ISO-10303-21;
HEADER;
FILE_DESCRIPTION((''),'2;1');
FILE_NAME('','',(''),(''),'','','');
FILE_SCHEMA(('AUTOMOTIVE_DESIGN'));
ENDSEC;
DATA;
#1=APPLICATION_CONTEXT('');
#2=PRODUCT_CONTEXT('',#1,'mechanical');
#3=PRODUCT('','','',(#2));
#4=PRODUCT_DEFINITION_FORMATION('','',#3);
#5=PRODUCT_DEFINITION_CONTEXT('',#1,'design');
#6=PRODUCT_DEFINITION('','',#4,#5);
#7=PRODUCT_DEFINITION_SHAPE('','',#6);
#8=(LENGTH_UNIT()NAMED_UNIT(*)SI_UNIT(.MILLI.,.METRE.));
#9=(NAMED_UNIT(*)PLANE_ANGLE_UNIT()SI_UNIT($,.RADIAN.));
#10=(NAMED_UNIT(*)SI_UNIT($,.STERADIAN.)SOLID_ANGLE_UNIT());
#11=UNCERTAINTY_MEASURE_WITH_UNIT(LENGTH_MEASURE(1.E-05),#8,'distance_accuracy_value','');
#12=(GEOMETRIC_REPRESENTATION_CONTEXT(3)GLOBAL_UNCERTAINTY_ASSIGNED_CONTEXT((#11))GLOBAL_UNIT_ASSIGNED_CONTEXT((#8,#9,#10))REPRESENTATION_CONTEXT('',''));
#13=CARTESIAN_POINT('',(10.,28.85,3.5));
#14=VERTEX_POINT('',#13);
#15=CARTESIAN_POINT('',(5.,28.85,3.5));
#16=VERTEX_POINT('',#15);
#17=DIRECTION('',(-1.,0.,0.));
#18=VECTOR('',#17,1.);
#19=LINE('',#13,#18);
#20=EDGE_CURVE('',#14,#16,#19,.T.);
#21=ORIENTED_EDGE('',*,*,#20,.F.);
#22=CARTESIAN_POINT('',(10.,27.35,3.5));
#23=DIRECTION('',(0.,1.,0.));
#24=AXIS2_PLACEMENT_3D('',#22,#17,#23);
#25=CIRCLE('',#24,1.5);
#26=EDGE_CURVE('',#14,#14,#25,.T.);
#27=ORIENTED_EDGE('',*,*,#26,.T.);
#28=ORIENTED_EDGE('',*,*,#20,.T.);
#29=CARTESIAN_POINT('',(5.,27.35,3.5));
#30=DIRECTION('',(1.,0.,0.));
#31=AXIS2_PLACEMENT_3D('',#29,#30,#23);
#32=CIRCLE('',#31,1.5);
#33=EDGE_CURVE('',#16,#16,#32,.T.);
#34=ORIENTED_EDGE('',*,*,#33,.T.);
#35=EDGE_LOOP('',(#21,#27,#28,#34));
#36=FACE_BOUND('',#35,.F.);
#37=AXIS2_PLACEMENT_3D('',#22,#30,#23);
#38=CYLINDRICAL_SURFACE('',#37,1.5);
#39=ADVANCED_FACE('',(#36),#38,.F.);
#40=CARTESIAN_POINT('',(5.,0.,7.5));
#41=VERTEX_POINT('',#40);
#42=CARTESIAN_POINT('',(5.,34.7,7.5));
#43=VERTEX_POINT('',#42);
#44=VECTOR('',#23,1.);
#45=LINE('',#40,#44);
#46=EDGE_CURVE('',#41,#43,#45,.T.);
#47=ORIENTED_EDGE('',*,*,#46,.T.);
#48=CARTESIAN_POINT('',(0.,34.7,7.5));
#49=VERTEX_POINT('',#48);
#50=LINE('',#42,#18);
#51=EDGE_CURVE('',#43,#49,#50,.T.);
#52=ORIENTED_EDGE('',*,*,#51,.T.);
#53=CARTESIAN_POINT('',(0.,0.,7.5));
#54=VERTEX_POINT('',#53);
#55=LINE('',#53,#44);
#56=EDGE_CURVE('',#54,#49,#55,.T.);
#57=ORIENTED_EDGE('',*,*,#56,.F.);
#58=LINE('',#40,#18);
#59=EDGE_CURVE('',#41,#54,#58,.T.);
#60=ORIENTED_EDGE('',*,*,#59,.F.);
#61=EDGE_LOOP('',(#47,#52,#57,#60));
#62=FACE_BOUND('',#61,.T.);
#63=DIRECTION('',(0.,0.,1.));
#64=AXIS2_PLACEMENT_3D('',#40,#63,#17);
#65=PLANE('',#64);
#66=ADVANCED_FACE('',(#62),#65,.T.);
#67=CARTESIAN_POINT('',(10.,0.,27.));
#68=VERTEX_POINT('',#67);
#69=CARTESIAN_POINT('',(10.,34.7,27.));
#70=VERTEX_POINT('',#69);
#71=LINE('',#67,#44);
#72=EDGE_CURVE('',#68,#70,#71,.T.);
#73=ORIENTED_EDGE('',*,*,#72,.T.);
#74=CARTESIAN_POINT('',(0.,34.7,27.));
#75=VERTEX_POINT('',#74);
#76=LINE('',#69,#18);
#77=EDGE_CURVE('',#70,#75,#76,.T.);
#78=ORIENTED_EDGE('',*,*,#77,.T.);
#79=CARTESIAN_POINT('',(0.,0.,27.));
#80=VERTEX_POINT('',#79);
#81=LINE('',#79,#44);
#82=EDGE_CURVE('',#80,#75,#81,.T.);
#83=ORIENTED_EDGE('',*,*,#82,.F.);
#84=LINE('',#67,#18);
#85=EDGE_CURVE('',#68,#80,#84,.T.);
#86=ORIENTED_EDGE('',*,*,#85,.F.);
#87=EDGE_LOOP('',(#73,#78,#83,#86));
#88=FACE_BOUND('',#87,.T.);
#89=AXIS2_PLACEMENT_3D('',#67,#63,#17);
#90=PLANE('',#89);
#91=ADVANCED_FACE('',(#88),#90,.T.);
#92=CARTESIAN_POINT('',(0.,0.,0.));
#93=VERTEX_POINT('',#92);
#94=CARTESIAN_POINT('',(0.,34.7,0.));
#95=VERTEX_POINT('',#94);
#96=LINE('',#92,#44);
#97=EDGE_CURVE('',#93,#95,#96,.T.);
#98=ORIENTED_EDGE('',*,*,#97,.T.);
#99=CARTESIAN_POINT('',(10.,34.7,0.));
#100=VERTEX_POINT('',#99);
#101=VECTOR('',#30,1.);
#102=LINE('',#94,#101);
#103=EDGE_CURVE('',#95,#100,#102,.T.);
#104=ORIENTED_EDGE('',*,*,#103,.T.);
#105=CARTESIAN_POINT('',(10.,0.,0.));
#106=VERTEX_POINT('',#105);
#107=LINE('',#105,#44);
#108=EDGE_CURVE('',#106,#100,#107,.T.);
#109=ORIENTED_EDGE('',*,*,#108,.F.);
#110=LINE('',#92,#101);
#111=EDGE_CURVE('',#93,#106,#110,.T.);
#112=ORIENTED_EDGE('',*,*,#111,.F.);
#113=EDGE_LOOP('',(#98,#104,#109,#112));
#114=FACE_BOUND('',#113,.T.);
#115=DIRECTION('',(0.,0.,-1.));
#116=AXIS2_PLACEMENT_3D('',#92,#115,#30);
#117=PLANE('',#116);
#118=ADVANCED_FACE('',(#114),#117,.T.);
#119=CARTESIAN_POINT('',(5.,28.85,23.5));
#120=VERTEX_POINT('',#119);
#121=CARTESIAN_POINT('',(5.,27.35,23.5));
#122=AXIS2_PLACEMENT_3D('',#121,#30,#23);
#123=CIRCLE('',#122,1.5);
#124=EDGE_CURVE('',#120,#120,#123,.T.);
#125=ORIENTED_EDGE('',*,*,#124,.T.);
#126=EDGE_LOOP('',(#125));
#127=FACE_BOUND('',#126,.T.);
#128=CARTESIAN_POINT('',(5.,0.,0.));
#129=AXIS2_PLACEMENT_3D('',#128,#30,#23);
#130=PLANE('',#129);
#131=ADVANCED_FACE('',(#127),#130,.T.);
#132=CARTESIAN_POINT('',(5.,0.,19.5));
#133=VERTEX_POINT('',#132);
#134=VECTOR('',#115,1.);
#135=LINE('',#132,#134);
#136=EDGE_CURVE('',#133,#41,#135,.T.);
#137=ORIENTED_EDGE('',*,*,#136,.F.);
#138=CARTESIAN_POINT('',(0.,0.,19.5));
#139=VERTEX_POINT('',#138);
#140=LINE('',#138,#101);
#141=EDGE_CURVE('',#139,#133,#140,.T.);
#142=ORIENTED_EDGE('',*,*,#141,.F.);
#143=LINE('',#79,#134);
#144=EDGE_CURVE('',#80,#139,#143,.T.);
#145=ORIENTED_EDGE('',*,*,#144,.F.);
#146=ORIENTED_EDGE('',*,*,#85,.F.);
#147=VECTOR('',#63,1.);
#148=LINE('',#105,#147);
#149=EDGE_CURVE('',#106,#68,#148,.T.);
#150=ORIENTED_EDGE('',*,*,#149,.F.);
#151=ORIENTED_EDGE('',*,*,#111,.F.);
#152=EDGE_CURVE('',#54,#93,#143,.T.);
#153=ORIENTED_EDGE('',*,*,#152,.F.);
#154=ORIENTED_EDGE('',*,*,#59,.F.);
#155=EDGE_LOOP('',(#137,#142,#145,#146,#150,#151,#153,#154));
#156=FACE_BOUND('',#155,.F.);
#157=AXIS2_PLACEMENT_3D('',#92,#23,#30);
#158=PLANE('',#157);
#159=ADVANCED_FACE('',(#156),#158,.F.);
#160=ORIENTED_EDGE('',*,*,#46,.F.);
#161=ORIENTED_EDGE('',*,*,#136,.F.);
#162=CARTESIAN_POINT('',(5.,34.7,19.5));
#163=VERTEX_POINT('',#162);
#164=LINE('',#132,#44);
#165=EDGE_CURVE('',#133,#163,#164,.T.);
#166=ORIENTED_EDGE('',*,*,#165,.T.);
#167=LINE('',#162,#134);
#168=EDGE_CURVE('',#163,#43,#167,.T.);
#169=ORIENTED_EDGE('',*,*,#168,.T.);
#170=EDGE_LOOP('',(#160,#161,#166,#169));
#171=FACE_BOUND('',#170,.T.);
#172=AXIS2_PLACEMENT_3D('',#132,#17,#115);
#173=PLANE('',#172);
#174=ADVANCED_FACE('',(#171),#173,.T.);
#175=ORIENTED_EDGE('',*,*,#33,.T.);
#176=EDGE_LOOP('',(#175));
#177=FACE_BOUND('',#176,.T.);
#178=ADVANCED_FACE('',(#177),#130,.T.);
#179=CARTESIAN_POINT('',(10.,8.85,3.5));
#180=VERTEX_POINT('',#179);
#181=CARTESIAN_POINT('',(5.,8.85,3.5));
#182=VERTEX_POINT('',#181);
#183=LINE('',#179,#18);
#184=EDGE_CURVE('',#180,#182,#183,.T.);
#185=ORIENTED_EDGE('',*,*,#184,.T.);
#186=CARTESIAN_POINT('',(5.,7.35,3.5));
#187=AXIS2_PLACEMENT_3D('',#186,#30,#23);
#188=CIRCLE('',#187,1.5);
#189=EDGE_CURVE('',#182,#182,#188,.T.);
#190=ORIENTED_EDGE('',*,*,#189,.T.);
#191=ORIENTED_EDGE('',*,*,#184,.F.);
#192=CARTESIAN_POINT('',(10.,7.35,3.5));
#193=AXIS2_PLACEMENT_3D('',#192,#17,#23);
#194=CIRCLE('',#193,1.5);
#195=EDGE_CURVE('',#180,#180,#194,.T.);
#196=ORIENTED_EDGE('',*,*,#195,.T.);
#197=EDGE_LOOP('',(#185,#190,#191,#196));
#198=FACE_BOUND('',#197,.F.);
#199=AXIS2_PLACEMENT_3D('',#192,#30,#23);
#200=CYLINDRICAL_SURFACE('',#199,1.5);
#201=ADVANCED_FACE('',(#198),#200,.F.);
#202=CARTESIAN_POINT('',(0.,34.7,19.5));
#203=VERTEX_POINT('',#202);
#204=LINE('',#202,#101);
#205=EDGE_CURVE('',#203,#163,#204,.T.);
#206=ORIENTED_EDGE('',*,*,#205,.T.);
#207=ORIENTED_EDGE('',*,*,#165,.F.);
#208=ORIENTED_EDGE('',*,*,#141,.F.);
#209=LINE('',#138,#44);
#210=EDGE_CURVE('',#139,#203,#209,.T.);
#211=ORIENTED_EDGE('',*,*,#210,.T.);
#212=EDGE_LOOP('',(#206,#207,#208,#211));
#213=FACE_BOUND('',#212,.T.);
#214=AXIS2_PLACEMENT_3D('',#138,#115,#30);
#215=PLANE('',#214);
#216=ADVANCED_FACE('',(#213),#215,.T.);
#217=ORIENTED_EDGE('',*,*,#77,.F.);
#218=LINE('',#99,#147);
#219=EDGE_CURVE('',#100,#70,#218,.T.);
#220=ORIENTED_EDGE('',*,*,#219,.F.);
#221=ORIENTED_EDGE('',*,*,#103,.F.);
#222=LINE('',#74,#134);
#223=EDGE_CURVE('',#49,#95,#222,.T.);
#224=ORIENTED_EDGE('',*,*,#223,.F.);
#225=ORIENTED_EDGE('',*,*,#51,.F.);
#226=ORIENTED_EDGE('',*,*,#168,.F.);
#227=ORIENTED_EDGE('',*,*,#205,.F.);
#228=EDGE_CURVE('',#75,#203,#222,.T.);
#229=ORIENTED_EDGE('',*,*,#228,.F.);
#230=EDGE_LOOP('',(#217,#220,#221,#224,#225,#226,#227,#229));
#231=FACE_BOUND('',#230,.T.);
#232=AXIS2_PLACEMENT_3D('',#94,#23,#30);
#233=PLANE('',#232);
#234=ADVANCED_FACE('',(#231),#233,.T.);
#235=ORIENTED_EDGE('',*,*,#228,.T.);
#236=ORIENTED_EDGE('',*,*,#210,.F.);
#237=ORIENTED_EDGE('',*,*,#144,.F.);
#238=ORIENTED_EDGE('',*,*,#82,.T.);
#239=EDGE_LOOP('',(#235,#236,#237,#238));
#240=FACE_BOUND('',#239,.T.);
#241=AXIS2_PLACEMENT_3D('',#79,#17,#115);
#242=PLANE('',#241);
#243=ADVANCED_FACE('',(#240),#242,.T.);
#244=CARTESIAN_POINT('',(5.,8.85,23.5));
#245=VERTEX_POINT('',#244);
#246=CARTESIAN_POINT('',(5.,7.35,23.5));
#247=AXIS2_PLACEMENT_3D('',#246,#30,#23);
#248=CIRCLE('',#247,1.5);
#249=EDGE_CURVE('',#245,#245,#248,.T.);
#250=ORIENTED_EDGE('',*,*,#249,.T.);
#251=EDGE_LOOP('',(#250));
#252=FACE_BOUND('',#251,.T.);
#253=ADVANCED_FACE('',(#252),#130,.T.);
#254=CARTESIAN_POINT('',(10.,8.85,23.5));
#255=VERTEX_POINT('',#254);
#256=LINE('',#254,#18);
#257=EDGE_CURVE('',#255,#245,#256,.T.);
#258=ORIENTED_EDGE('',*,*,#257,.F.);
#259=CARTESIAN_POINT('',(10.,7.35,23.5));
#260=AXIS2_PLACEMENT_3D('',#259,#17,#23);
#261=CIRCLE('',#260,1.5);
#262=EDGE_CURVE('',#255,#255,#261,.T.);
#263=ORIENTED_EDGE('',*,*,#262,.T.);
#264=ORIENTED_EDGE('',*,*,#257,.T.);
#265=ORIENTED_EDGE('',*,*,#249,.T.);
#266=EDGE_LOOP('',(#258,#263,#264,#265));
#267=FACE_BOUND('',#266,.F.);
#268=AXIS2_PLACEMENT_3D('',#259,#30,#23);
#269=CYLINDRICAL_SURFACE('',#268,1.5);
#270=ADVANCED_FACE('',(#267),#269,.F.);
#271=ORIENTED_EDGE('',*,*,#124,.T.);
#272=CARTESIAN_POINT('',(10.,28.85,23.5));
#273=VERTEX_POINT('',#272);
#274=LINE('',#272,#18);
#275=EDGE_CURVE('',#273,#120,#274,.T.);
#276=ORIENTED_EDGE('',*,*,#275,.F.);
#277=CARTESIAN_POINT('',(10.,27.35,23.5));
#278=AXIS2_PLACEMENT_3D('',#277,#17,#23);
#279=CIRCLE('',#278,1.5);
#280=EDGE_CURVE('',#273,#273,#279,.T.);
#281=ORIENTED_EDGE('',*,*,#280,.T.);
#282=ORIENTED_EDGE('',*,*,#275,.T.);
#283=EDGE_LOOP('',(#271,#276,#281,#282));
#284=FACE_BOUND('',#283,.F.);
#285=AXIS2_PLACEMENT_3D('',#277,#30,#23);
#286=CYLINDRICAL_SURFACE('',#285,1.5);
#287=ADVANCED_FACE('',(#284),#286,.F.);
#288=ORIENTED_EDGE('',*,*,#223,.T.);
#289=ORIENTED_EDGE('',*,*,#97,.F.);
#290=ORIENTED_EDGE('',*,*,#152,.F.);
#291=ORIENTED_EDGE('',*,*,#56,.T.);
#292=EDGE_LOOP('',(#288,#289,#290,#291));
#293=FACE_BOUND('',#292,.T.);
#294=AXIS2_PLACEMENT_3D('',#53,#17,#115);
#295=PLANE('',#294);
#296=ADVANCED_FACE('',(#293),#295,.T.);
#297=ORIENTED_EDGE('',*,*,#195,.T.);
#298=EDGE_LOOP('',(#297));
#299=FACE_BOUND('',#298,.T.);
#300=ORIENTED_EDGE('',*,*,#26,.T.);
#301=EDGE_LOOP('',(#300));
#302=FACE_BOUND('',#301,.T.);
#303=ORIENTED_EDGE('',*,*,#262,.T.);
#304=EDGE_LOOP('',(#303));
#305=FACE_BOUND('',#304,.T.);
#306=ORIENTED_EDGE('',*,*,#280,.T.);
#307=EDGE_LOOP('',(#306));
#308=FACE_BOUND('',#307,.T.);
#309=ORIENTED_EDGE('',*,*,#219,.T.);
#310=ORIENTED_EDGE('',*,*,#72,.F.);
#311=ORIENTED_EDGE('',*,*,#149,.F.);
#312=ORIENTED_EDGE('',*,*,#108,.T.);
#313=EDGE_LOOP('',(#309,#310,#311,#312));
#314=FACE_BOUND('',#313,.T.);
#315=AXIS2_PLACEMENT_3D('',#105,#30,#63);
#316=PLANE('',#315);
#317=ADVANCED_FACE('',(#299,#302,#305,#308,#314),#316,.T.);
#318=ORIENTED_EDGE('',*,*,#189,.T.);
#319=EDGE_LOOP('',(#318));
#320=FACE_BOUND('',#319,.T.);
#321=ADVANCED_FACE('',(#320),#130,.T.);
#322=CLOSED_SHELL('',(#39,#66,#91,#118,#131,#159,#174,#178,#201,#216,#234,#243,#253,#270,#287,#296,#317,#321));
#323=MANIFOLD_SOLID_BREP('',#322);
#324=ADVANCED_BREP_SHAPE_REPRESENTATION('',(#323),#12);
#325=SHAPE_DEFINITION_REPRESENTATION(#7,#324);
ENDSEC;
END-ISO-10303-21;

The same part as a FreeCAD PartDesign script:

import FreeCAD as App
import Part
import Sketcher

V = App.Vector


def add_polygon(sketch, points):
    """Adds a closed chain of lines whose ends are joined by coincident constraints."""
    first, n = sketch.GeometryCount, len(points)
    for a, b in zip(points, points[1:] + points[:1]):
        sketch.addGeometry(Part.LineSegment(App.Vector(*a, 0), App.Vector(*b, 0)), False)
    for i in range(n):
        sketch.addConstraint(Sketcher.Constraint("Coincident", first + i, 2, first + (i + 1) % n, 1))

doc = App.newDocument("Part")
body = doc.addObject("PartDesign::Body", "Body")

# Sketch on XZ plane
sketch1 = body.newObject("Sketcher::SketchObject", "Sketch")
sketch1.AttachmentSupport = (doc.getObject("XZ_Plane"), [""])
sketch1.MapMode = "FlatFace"
add_polygon(sketch1, [(10, 0), (0, 0), (0, 8), (5, 8), (5, 20), (0, 20), (0, 27), (10, 27)])  # lines 0-7
sketch1.addConstraint([
    Sketcher.Constraint("Horizontal", 0),
    Sketcher.Constraint("Vertical", 1),
    Sketcher.Constraint("Horizontal", 2),
    Sketcher.Constraint("Vertical", 3),
    Sketcher.Constraint("Horizontal", 4),
    Sketcher.Constraint("Vertical", 5),
    Sketcher.Constraint("Horizontal", 6),
    Sketcher.Constraint("Vertical", 7),
    Sketcher.Constraint("Coincident", 0, 2, -1, 1),
    Sketcher.Constraint("PointOnObject", 4, 2, -2),
    Sketcher.Constraint("Equal", 1, 5),
    Sketcher.Constraint("DistanceX", 0, 2, 0, 1, 10.0),
    Sketcher.Constraint("DistanceX", 2, 1, 2, 2, 5.0),
    Sketcher.Constraint("DistanceY", 3, 1, 3, 2, 12.0),
    Sketcher.Constraint("DistanceY", 7, 2, 7, 1, 27.0),
])
pad1 = body.newObject("PartDesign::Pad", "Pad")
pad1.Profile = sketch1
pad1.Length = 34.7
pad1.Reversed = True

# Sketch on YZ plane
sketch2 = body.newObject("Sketcher::SketchObject", "Sketch001")
sketch2.AttachmentSupport = (doc.getObject("YZ_Plane"), [""])
sketch2.MapMode = "FlatFace"
sketch2.AttachmentOffset = App.Placement(V(0, 0, 10), App.Rotation())
sketch2.addGeometry([
    Part.Circle(V(7.3, 3.5, 0), V(0, 0, 1), 1.5),
    Part.Circle(V(27.4, 3.5, 0), V(0, 0, 1), 1.5),
    Part.Circle(V(7.3, 23.5, 0), V(0, 0, 1), 1.5),
    Part.Circle(V(27.4, 23.5, 0), V(0, 0, 1), 1.5),
], False)
sketch2.addConstraint([
    Sketcher.Constraint("Equal", 0, 1),
    Sketcher.Constraint("Equal", 1, 2),
    Sketcher.Constraint("Equal", 2, 3),
    Sketcher.Constraint("Horizontal", 0, 3, 1, 3),
    Sketcher.Constraint("Horizontal", 2, 3, 3, 3),
    Sketcher.Constraint("Vertical", 0, 3, 2, 3),
    Sketcher.Constraint("Vertical", 1, 3, 3, 3),
    Sketcher.Constraint("Diameter", 0, 3.0),
    Sketcher.Constraint("DistanceX", 0, 3, 1, 3, 20.0),
    Sketcher.Constraint("DistanceY", 0, 3, 2, 3, 20.0),
    Sketcher.Constraint("DistanceY", -1, 1, 0, 3, 3.5),
    Sketcher.Constraint("DistanceX", -1, 1, 0, 3, 7.35),
])
pocket1 = body.newObject("PartDesign::Pocket", "Pocket")
pocket1.Profile = sketch2
pocket1.Length = 5

doc.recompute()
